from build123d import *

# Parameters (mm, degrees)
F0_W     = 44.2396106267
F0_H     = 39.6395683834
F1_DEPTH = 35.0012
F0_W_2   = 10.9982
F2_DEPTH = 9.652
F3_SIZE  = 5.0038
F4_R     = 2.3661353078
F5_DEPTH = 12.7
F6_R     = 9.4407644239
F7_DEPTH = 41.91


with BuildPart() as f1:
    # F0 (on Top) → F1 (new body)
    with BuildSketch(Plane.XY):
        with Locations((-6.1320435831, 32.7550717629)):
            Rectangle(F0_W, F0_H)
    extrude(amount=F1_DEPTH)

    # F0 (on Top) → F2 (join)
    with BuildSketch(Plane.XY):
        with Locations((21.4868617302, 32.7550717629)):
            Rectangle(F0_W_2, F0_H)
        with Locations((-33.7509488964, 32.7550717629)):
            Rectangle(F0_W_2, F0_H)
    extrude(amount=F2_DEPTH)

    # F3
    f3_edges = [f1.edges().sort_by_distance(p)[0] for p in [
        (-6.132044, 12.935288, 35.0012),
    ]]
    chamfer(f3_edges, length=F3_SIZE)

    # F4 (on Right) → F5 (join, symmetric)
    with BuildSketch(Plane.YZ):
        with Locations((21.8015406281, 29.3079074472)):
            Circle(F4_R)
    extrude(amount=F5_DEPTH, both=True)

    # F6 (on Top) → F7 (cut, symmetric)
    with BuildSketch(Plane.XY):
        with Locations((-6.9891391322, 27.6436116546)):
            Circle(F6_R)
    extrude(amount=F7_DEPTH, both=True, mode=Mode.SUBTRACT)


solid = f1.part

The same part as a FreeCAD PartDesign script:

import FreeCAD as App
import Part
import Sketcher

V = App.Vector
Q = App.Units.Quantity


def edges_at(feature, points):
    """Names of the edges that pass closest to the given points."""
    edges = feature.Shape.Edges
    near = lambda p: min(range(len(edges)), key=lambda i: edges[i].distToShape(Part.Vertex(*p))[0])
    return sorted({f"Edge{near(p) + 1}" for p in points})


def add_polygon(sketch, points):
    """Adds a closed chain of lines whose ends are joined by coincident constraints."""
    first, n = sketch.GeometryCount, len(points)
    for a, b in zip(points, points[1:] + points[:1]):
        sketch.addGeometry(Part.LineSegment(App.Vector(*a, 0), App.Vector(*b, 0)), False)
    for i in range(n):
        sketch.addConstraint(Sketcher.Constraint("Coincident", first + i, 2, first + (i + 1) % n, 1))

doc = App.newDocument("Part")
params = doc.addObject("Spreadsheet::Sheet", "Params")
for row, (alias, value) in enumerate([
    ("pad1_length", "1.378 in"),
    ("sketch2_width", "0.433 in"),
    ("pad2_length", "0.38 in"),
    ("chamfer_size", "0.197 in"),
    ("pad3_length", "1 in"),
    ("pocket1_length", "3.3 in"),
], start=1):
    params.set(f"A{row}", alias)
    params.set(f"B{row}", "=" + value)
    params.setAlias(f"B{row}", alias)

body = doc.addObject("PartDesign::Body", "Body")

sketch1 = body.newObject("Sketcher::SketchObject", "Sketch")
sketch1.AttachmentSupport = (doc.getObject("XY_Plane"), [""])
sketch1.MapMode = "FlatFace"
add_polygon(sketch1, [(-28, 53), (-28, 13), (16, 13), (16, 53)])
sketch1.addConstraint(Sketcher.Constraint("Vertical", 0))
sketch1.addConstraint(Sketcher.Constraint("Horizontal", 1))
sketch1.addConstraint(Sketcher.Constraint("Vertical", 2))
sketch1.addConstraint(Sketcher.Constraint("Horizontal", 3))
sketch1.addConstraint(Sketcher.Constraint("DistanceX", 1, 1, 1, 2, Q("44.239611 mm")))
sketch1.addConstraint(Sketcher.Constraint("DistanceY", 0, 2, 0, 1, Q("39.639568 mm")))
sketch1.addConstraint(Sketcher.Constraint("DistanceX", 0, 2, -1, 1, Q("28.251849 mm")))
sketch1.addConstraint(Sketcher.Constraint("DistanceY", -1, 1, 0, 2, Q("12.935288 mm")))
pad1 = body.newObject("PartDesign::Pad", "Pad")
pad1.Profile = sketch1
pad1.setExpression("Length", "Params.pad1_length")

sketch2 = body.newObject("Sketcher::SketchObject", "Sketch001")
sketch2.AttachmentSupport = (doc.getObject("XY_Plane"), [""])
sketch2.MapMode = "FlatFace"
add_polygon(sketch2, [(16, 53), (16, 13), (27, 13), (27, 53)])
add_polygon(sketch2, [(-39, 53), (-39, 13), (-28, 13), (-28, 53)])
sketch2.addConstraint(Sketcher.Constraint("Vertical", 0))
sketch2.addConstraint(Sketcher.Constraint("Horizontal", 1))
sketch2.addConstraint(Sketcher.Constraint("Vertical", 2))
sketch2.addConstraint(Sketcher.Constraint("Horizontal", 3))
sketch2.addConstraint(Sketcher.Constraint("Vertical", 4))
sketch2.addConstraint(Sketcher.Constraint("Horizontal", 5))
sketch2.addConstraint(Sketcher.Constraint("Vertical", 6))
sketch2.addConstraint(Sketcher.Constraint("Horizontal", 7))
sketch2.addConstraint(Sketcher.Constraint("Horizontal", 1, 2, 4, 2))
sketch2.addConstraint(Sketcher.Constraint("Horizontal", 3, 2, 6, 2))
sketch2.addConstraint(Sketcher.Constraint("Equal", 3, 5))
sketch2.addConstraint(Sketcher.Constraint("DistanceX", 1, 1, 1, 2, Q("0.433 in")))
sketch2.addConstraint(Sketcher.Constraint("DistanceY", 0, 2, 0, 1, Q("39.639568 mm")))
sketch2.addConstraint(Sketcher.Constraint("DistanceX", -1, 1, 0, 2, Q("15.987762 mm")))
sketch2.addConstraint(Sketcher.Constraint("DistanceX", 4, 2, -1, 1, Q("39.250049 mm")))
sketch2.addConstraint(Sketcher.Constraint("DistanceY", -1, 1, 0, 2, Q("12.935288 mm")))
sketch2.setExpression("Constraints[19]", "Params.sketch2_width")
pad2 = body.newObject("PartDesign::Pad", "Pad001")
pad2.Profile = sketch2
pad2.setExpression("Length", "Params.pad2_length")
doc.recompute()

chamfer = body.newObject("PartDesign::Chamfer", "Chamfer")
chamfer.Base = (pad2, edges_at(pad2, [(-6.132, 12.935, 35.001)]))
chamfer.setExpression("Size", "Params.chamfer_size")

sketch3 = body.newObject("Sketcher::SketchObject", "Sketch002")
sketch3.AttachmentSupport = (doc.getObject("YZ_Plane"), [""])
sketch3.MapMode = "FlatFace"
sketch3.addGeometry(Part.Circle(V(21.8, 29.3, 0), V(0, 0, 1), 2.4), False)
sketch3.addConstraint(Sketcher.Constraint("Diameter", 0, Q("4.732271 mm")))
sketch3.addConstraint(Sketcher.Constraint("DistanceX", -1, 1, 0, 3, Q("21.801541 mm")))
sketch3.addConstraint(Sketcher.Constraint("DistanceY", -1, 1, 0, 3, Q("29.307907 mm")))
pad3 = body.newObject("PartDesign::Pad", "Pad002")
pad3.Profile = sketch3
pad3.setExpression("Length", "Params.pad3_length")
pad3.Midplane = True

sketch4 = body.newObject("Sketcher::SketchObject", "Sketch003")
sketch4.AttachmentSupport = (doc.getObject("XY_Plane"), [""])
sketch4.MapMode = "FlatFace"
sketch4.addGeometry(Part.Circle(V(-7, 28, 0), V(0, 0, 1), 9), False)
sketch4.addConstraint(Sketcher.Constraint("Diameter", 0, Q("18.881529 mm")))
sketch4.addConstraint(Sketcher.Constraint("DistanceX", 0, 3, -1, 1, Q("6.989139 mm")))
sketch4.addConstraint(Sketcher.Constraint("DistanceY", -1, 1, 0, 3, Q("27.643612 mm")))
pocket1 = body.newObject("PartDesign::Pocket", "Pocket")
pocket1.Profile = sketch4
pocket1.setExpression("Length", "Params.pocket1_length")
pocket1.Midplane = True

doc.recompute()
